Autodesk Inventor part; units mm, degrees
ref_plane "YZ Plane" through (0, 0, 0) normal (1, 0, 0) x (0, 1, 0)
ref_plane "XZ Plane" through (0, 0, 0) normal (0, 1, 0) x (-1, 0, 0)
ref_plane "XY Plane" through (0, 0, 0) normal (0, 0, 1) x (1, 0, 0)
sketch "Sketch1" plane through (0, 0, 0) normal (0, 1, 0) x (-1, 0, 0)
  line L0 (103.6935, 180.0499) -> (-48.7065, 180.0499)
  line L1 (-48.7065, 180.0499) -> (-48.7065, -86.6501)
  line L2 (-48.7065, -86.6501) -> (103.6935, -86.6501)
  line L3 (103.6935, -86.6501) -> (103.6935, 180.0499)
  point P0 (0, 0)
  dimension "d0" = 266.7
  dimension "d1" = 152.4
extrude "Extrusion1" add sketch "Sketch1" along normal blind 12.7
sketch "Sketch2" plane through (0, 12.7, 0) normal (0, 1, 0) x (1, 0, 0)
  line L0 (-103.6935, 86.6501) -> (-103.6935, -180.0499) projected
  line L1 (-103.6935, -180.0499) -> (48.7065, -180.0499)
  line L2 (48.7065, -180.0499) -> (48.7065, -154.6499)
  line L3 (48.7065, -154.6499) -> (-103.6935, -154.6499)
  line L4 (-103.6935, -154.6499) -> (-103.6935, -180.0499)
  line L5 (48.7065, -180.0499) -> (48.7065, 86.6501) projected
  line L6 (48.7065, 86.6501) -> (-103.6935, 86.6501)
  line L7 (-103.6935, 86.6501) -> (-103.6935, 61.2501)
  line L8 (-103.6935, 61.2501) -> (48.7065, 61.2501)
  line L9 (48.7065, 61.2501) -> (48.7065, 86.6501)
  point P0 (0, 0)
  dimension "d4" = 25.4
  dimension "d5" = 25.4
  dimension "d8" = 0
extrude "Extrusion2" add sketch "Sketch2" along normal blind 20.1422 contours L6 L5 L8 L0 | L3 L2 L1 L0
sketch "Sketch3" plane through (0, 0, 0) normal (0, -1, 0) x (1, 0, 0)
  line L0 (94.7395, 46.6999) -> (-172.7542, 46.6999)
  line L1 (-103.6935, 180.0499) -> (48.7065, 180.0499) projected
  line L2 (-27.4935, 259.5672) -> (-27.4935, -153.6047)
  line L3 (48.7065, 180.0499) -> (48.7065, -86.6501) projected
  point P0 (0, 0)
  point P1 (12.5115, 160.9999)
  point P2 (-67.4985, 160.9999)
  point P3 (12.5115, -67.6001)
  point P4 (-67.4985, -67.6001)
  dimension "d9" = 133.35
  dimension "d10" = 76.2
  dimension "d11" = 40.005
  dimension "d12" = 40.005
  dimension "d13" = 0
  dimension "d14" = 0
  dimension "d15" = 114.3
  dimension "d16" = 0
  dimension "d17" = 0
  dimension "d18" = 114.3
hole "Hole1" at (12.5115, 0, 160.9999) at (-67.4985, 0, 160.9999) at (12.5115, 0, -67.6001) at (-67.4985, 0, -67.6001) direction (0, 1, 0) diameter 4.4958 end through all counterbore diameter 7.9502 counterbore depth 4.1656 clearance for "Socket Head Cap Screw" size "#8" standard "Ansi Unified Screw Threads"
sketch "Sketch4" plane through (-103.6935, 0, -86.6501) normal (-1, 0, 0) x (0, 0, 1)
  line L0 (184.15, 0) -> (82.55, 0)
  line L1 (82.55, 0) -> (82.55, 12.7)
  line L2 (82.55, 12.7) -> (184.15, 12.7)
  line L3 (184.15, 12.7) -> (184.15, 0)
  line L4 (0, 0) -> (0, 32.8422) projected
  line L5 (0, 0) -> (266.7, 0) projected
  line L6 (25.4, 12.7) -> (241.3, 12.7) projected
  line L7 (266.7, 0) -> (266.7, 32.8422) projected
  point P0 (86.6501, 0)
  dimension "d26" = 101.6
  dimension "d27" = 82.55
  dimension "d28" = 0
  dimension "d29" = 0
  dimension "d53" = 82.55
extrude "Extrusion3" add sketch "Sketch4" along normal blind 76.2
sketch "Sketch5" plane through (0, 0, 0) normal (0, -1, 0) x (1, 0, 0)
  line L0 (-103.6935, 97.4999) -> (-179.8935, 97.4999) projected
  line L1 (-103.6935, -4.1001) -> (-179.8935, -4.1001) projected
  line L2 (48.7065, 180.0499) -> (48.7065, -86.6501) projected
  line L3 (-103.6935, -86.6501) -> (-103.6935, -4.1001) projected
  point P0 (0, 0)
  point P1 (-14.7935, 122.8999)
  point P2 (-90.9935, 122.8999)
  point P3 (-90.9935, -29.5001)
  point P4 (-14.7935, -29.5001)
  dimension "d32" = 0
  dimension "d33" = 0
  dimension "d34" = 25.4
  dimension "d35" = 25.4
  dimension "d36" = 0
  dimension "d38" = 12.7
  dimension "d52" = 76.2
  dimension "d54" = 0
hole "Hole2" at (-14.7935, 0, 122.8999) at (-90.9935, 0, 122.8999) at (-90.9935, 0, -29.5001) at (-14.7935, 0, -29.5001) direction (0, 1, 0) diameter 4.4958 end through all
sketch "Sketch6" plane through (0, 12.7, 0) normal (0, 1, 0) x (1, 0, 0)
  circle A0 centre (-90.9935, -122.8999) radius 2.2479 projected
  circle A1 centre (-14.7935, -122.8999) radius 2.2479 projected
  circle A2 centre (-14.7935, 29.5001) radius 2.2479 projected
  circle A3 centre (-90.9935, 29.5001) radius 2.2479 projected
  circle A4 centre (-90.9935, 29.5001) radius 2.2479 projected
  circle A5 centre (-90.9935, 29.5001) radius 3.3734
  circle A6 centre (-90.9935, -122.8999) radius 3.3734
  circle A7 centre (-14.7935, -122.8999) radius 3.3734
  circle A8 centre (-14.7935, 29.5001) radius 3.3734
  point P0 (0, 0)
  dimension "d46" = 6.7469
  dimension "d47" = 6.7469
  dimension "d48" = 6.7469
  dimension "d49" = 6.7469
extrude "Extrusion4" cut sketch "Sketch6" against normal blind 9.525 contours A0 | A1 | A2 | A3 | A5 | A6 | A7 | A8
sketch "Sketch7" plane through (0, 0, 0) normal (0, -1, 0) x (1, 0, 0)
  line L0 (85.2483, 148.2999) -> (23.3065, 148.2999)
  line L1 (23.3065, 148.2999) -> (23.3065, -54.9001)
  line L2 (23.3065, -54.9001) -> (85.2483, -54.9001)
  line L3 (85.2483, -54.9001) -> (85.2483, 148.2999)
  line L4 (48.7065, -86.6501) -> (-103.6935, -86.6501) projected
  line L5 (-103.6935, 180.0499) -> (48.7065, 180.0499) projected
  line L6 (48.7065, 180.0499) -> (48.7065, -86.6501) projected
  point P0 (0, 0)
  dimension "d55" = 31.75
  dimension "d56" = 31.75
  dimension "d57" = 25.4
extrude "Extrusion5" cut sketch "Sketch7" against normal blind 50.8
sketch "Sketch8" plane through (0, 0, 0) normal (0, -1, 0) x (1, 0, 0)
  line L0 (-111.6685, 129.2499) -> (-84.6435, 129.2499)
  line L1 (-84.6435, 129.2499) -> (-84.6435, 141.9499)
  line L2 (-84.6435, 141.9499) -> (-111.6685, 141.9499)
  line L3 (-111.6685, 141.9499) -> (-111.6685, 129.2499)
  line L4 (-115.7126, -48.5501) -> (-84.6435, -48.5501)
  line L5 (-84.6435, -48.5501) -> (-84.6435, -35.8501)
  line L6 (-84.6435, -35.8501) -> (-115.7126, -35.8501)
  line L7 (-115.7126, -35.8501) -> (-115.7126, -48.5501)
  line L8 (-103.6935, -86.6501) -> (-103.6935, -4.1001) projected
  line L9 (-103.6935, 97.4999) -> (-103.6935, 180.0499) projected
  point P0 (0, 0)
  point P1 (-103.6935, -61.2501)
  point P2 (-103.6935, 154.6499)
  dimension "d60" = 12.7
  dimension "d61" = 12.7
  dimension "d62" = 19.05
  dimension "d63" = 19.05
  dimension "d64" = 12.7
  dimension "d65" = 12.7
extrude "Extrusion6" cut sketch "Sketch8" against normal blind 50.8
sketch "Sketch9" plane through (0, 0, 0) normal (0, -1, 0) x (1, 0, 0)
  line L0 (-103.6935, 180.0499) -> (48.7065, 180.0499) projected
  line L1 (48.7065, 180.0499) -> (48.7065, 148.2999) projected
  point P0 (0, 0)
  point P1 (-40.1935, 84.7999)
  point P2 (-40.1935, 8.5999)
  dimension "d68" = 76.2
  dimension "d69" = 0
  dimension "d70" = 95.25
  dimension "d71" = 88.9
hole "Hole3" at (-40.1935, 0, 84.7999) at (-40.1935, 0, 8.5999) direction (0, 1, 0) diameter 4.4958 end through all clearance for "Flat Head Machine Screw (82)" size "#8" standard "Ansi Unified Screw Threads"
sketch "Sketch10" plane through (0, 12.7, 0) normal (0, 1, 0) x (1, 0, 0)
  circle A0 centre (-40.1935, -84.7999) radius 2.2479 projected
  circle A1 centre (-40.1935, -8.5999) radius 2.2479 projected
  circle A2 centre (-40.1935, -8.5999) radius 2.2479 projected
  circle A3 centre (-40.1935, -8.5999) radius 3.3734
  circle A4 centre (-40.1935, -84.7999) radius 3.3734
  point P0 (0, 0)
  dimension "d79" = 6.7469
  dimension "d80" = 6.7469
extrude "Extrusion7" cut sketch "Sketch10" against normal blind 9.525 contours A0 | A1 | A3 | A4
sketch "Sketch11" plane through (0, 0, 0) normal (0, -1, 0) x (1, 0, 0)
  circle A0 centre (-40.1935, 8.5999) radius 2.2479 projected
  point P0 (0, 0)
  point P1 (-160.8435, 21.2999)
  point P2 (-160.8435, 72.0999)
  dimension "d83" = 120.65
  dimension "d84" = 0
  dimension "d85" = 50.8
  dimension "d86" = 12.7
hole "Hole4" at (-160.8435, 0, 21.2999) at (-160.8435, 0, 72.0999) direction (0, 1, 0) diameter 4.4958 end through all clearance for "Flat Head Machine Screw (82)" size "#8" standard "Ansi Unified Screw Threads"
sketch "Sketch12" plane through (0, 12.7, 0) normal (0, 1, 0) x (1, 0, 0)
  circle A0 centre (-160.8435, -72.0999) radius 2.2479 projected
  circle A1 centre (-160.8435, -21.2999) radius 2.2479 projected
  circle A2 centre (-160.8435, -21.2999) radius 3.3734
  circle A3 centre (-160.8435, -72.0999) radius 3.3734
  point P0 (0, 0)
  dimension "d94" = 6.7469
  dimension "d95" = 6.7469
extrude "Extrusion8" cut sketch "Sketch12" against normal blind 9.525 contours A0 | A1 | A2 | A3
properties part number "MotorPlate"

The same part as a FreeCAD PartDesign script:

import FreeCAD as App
import Part
import Sketcher

V = App.Vector
Q = App.Units.Quantity


def add_polygon(sketch, points):
    """Adds a closed chain of lines whose ends are joined by coincident constraints."""
    first, n = sketch.GeometryCount, len(points)
    for a, b in zip(points, points[1:] + points[:1]):
        sketch.addGeometry(Part.LineSegment(App.Vector(*a, 0), App.Vector(*b, 0)), False)
    for i in range(n):
        sketch.addConstraint(Sketcher.Constraint("Coincident", first + i, 2, first + (i + 1) % n, 1))

doc = App.newDocument("Part")
params = doc.addObject("Spreadsheet::Sheet", "Params")
for row, (alias, value) in enumerate([
    ("sketch1_width", "6 in"),
    ("sketch1_height", "10.5 in"),
    ("pad1_length", "0.5 in"),
    ("sketch2_height", "1 in"),
    ("sketch2_width", "6 in"),
    ("pad2_length", "0.793 in"),
    ("sketch3_diameter", "0.177 in"),
    ("hole_diameter", "0.177 in"),
    ("hole_cbore_diameter", "0.313 in"),
    ("hole_cbore_depth", "0.164 in"),
    ("sketch4_height", "4 in"),
    ("sketch4_width", "0.5 in"),
    ("pad3_length", "3 in"),
    ("sketch5_diameter", "0.177 in"),
    ("hole2_diameter", "0.177 in"),
    ("sketch6_diameter", "0.265622 in"),
    ("pocket1_length", "0.375 in"),
    ("sketch7_height", "8 in"),
    ("pocket2_length", "2 in"),
    ("sketch8_height", "0.5 in"),
    ("pocket3_length", "2 in"),
    ("sketch9_diameter", "0.177 in"),
    ("hole3_diameter", "0.177 in"),
    ("sketch10_diameter", "0.265622 in"),
    ("pocket4_length", "0.375 in"),
    ("sketch11_diameter", "0.177 in"),
    ("hole4_diameter", "0.177 in"),
    ("sketch12_diameter", "0.265622 in"),
    ("pocket5_length", "0.375 in"),
], start=1):
    params.set(f"A{row}", alias)
    params.set(f"B{row}", "=" + value)
    params.setAlias(f"B{row}", alias)

body = doc.addObject("PartDesign::Body", "Body")

# Sketch on XZ plane
sketch1 = body.newObject("Sketcher::SketchObject", "Sketch")
sketch1.AttachmentSupport = (doc.getObject("XZ_Plane"), [""])
sketch1.MapMode = "FlatFace"
add_polygon(sketch1, [(-104, -87), (-104, 180), (49, 180), (49, -87)])  # lines 0-3
sketch1.addConstraint([
    Sketcher.Constraint("Vertical", 0),
    Sketcher.Constraint("Horizontal", 1),
    Sketcher.Constraint("Vertical", 2),
    Sketcher.Constraint("Horizontal", 3),
    Sketcher.Constraint("DistanceX", 1, 1, 1, 2, Q("6 in")),
    Sketcher.Constraint("DistanceY", 0, 1, 0, 2, Q("10.5 in")),
    Sketcher.Constraint("DistanceX", 0, 2, -1, 1, Q("103.6935 mm")),
    Sketcher.Constraint("DistanceY", -1, 1, 0, 2, Q("180.05 mm")),
])
sketch1.setExpression("Constraints[8]", "Params.sketch1_width")
sketch1.setExpression("Constraints[9]", "Params.sketch1_height")
pad1 = body.newObject("PartDesign::Pad", "Pad")
pad1.Profile = sketch1
pad1.setExpression("Length", "Params.pad1_length")
pad1.Reversed = True

# Sketch on XZ plane
sketch2 = body.newObject("Sketcher::SketchObject", "Sketch001")
sketch2.AttachmentSupport = (doc.getObject("XZ_Plane"), [""])
sketch2.MapMode = "FlatFace"
sketch2.AttachmentOffset = App.Placement(V(0, 0, -0.5 * 25.4), App.Rotation())
add_polygon(sketch2, [(49, -87), (-104, -87), (-104, -61), (49, -61)])  # lines 0-3
add_polygon(sketch2, [(49, 155), (-104, 155), (-104, 180), (49, 180)])  # lines 4-7
sketch2.addConstraint([
    Sketcher.Constraint("Horizontal", 0),
    Sketcher.Constraint("Vertical", 1),
    Sketcher.Constraint("Horizontal", 2),
    Sketcher.Constraint("Vertical", 3),
    Sketcher.Constraint("Horizontal", 4),
    Sketcher.Constraint("Vertical", 5),
    Sketcher.Constraint("Horizontal", 6),
    Sketcher.Constraint("Vertical", 7),
    Sketcher.Constraint("Vertical", 1, 2, 4, 2),
    Sketcher.Constraint("Vertical", 3, 2, 6, 2),
    Sketcher.Constraint("Equal", 3, 5),
    Sketcher.Constraint("DistanceY", 1, 1, 1, 2, Q("1 in")),
    Sketcher.Constraint("DistanceX", 0, 2, 0, 1, Q("6 in")),
    Sketcher.Constraint("DistanceY", 1, 2, 4, 2, Q("8.5 in")),
    Sketcher.Constraint("DistanceX", 0, 2, -1, 1, Q("103.6935 mm")),
    Sketcher.Constraint("DistanceY", 0, 2, -1, 1, Q("86.65 mm")),
])
sketch2.setExpression("Constraints[19]", "Params.sketch2_height")
sketch2.setExpression("Constraints[20]", "Params.sketch2_width")
pad2 = body.newObject("PartDesign::Pad", "Pad001")
pad2.Profile = sketch2
pad2.setExpression("Length", "Params.pad2_length")
pad2.Reversed = True

# Sketch on XZ plane
sketch3 = body.newObject("Sketcher::SketchObject", "Sketch002")
sketch3.AttachmentSupport = (doc.getObject("XZ_Plane"), [""])
sketch3.MapMode = "FlatFace"
sketch3.addGeometry([
    Part.Circle(V(12.5, 161, 0), V(0, 0, 1), 2.2),
    Part.Circle(V(-67.5, 161, 0), V(0, 0, 1), 2.2),
    Part.Circle(V(12.5, -67.6, 0), V(0, 0, 1), 2.2),
    Part.Circle(V(-67.5, -67.6, 0), V(0, 0, 1), 2.2),
], False)
sketch3.addConstraint([
    Sketcher.Constraint("Equal", 0, 1),
    Sketcher.Constraint("Equal", 1, 2),
    Sketcher.Constraint("Equal", 2, 3),
    Sketcher.Constraint("Horizontal", 0, 3, 1, 3),
    Sketcher.Constraint("Horizontal", 2, 3, 3, 3),
    Sketcher.Constraint("Vertical", 0, 3, 2, 3),
    Sketcher.Constraint("Vertical", 1, 3, 3, 3),
    Sketcher.Constraint("Diameter", 0, Q("0.177 in")),
    Sketcher.Constraint("DistanceY", 2, 3, 0, 3, Q("9 in")),
    Sketcher.Constraint("DistanceX", 1, 3, 0, 3, Q("3.15 in")),
    Sketcher.Constraint("DistanceX", -1, 1, 0, 3, Q("12.5115 mm")),
    Sketcher.Constraint("DistanceY", -1, 1, 0, 3, Q("161 mm")),
])
sketch3.setExpression("Constraints[7]", "Params.sketch3_diameter")
doc.recompute()
hole = body.newObject("PartDesign::Hole", "Hole")
hole.Profile = sketch3
hole.ThreadType = "None"
hole.setExpression("Diameter", "Params.hole_diameter")
hole.DepthType = "ThroughAll"
hole.HoleCutType = "Counterbore"
hole.setExpression("HoleCutDiameter", "Params.hole_cbore_diameter")
hole.setExpression("HoleCutDepth", "Params.hole_cbore_depth")

# Sketch on YZ plane
sketch4 = body.newObject("Sketcher::SketchObject", "Sketch003")
sketch4.AttachmentSupport = (doc.getObject("YZ_Plane"), [""])
sketch4.MapMode = "FlatFace"
sketch4.AttachmentOffset = App.Placement(V(0, 0, -103.6935), App.Rotation())
add_polygon(sketch4, [(0, -4), (0, 97), (13, 97), (13, -4)])  # lines 0-3
sketch4.addConstraint([
    Sketcher.Constraint("Vertical", 0),
    Sketcher.Constraint("Horizontal", 1),
    Sketcher.Constraint("Vertical", 2),
    Sketcher.Constraint("Horizontal", 3),
    Sketcher.Constraint("PointOnObject", 0, 2, -2),
    Sketcher.Constraint("DistanceY", 0, 1, 0, 2, Q("4 in")),
    Sketcher.Constraint("DistanceX", 1, 1, 1, 2, Q("0.5 in")),
    Sketcher.Constraint("DistanceY", -1, 1, 0, 2, Q("97.5 mm")),
])
sketch4.setExpression("Constraints[9]", "Params.sketch4_height")
sketch4.setExpression("Constraints[10]", "Params.sketch4_width")
pad3 = body.newObject("PartDesign::Pad", "Pad002")
pad3.Profile = sketch4
pad3.setExpression("Length", "Params.pad3_length")
pad3.Reversed = True

# Sketch on XZ plane
sketch5 = body.newObject("Sketcher::SketchObject", "Sketch004")
sketch5.AttachmentSupport = (doc.getObject("XZ_Plane"), [""])
sketch5.MapMode = "FlatFace"
sketch5.addGeometry([
    Part.Circle(V(-14.8, 122.9, 0), V(0, 0, 1), 2.2),
    Part.Circle(V(-91, 122.9, 0), V(0, 0, 1), 2.2),
    Part.Circle(V(-91, -29.5, 0), V(0, 0, 1), 2.2),
    Part.Circle(V(-14.8, -29.5, 0), V(0, 0, 1), 2.2),
], False)
sketch5.addConstraint([
    Sketcher.Constraint("Equal", 0, 1),
    Sketcher.Constraint("Equal", 1, 2),
    Sketcher.Constraint("Equal", 2, 3),
    Sketcher.Constraint("Horizontal", 0, 3, 1, 3),
    Sketcher.Constraint("Horizontal", 2, 3, 3, 3),
    Sketcher.Constraint("Vertical", 1, 3, 2, 3),
    Sketcher.Constraint("Vertical", 0, 3, 3, 3),
    Sketcher.Constraint("Diameter", 0, Q("0.177 in")),
    Sketcher.Constraint("DistanceX", 1, 3, 0, 3, Q("3 in")),
    Sketcher.Constraint("DistanceY", 2, 3, 1, 3, Q("6 in")),
    Sketcher.Constraint("DistanceX", 0, 3, -1, 1, Q("14.7935 mm")),
    Sketcher.Constraint("DistanceY", -1, 1, 0, 3, Q("122.9 mm")),
])
sketch5.setExpression("Constraints[7]", "Params.sketch5_diameter")
doc.recompute()
hole2 = body.newObject("PartDesign::Hole", "Hole001")
hole2.Profile = sketch5
hole2.ThreadType = "None"
hole2.setExpression("Diameter", "Params.hole2_diameter")
hole2.DepthType = "ThroughAll"

# Sketch on XZ plane
sketch6 = body.newObject("Sketcher::SketchObject", "Sketch005")
sketch6.AttachmentSupport = (doc.getObject("XZ_Plane"), [""])
sketch6.MapMode = "FlatFace"
sketch6.AttachmentOffset = App.Placement(V(0, 0, -0.5 * 25.4), App.Rotation())
sketch6.addGeometry([
    Part.Circle(V(-91, 122.9, 0), V(0, 0, 1), 3.4),
    Part.Circle(V(-14.8, 122.9, 0), V(0, 0, 1), 3.4),
    Part.Circle(V(-14.8, -29.5, 0), V(0, 0, 1), 3.4),
    Part.Circle(V(-91, -29.5, 0), V(0, 0, 1), 3.4),
], False)
sketch6.addConstraint([
    Sketcher.Constraint("Equal", 0, 1),
    Sketcher.Constraint("Equal", 1, 2),
    Sketcher.Constraint("Equal", 2, 3),
    Sketcher.Constraint("Horizontal", 0, 3, 1, 3),
    Sketcher.Constraint("Horizontal", 2, 3, 3, 3),
    Sketcher.Constraint("Vertical", 1, 3, 2, 3),
    Sketcher.Constraint("Vertical", 0, 3, 3, 3),
    Sketcher.Constraint("Diameter", 0, Q("0.265622 in")),
    Sketcher.Constraint("DistanceX", 0, 3, 1, 3, Q("3 in")),
    Sketcher.Constraint("DistanceY", 2, 3, 1, 3, Q("6 in")),
    Sketcher.Constraint("DistanceX", 0, 3, -1, 1, Q("90.9935 mm")),
    Sketcher.Constraint("DistanceY", -1, 1, 0, 3, Q("122.9 mm")),
])
sketch6.setExpression("Constraints[7]", "Params.sketch6_diameter")
pocket1 = body.newObject("PartDesign::Pocket", "Pocket")
pocket1.Profile = sketch6
pocket1.setExpression("Length", "Params.pocket1_length")
pocket1.Reversed = True

# Sketch on XZ plane
sketch7 = body.newObject("Sketcher::SketchObject", "Sketch006")
sketch7.AttachmentSupport = (doc.getObject("XZ_Plane"), [""])
sketch7.MapMode = "FlatFace"
add_polygon(sketch7, [(85, -55), (85, 148), (23, 148), (23, -55)])  # lines 0-3
sketch7.addConstraint([
    Sketcher.Constraint("Vertical", 0),
    Sketcher.Constraint("Horizontal", 1),
    Sketcher.Constraint("Vertical", 2),
    Sketcher.Constraint("Horizontal", 3),
    Sketcher.Constraint("DistanceY", 0, 1, 0, 2, Q("8 in")),
    Sketcher.Constraint("DistanceX", 1, 2, 1, 1, Q("61.9418 mm")),
    Sketcher.Constraint("DistanceX", -1, 1, 0, 2, Q("85.2483 mm")),
    Sketcher.Constraint("DistanceY", -1, 1, 0, 2, Q("148.3 mm")),
])
sketch7.setExpression("Constraints[8]", "Params.sketch7_height")
pocket2 = body.newObject("PartDesign::Pocket", "Pocket001")
pocket2.Profile = sketch7
pocket2.setExpression("Length", "Params.pocket2_length")

# Sketch on XZ plane
sketch8 = body.newObject("Sketcher::SketchObject", "Sketch007")
sketch8.AttachmentSupport = (doc.getObject("XZ_Plane"), [""])
sketch8.MapMode = "FlatFace"
add_polygon(sketch8, [(-112, 142), (-112, 129), (-85, 129), (-85, 142)])  # lines 0-3
add_polygon(sketch8, [(-116, -36), (-116, -49), (-85, -49), (-85, -36)])  # lines 4-7
sketch8.addConstraint([
    Sketcher.Constraint("Vertical", 0),
    Sketcher.Constraint("Horizontal", 1),
    Sketcher.Constraint("Vertical", 2),
    Sketcher.Constraint("Horizontal", 3),
    Sketcher.Constraint("Vertical", 4),
    Sketcher.Constraint("Horizontal", 5),
    Sketcher.Constraint("Vertical", 6),
    Sketcher.Constraint("Horizontal", 7),
    Sketcher.Constraint("Vertical", 2, 2, 5, 2),
    Sketcher.Constraint("Equal", 2, 4),
    Sketcher.Constraint("DistanceY", 0, 2, 0, 1, Q("0.5 in")),
    Sketcher.Constraint("DistanceY", 4, 2, 0, 2, Q("7 in")),
    Sketcher.Constraint("DistanceX", 5, 1, 5, 2, Q("1.2232 in")),
    Sketcher.Constraint("DistanceX", 1, 1, 1, 2, Q("27.025 mm")),
    Sketcher.Constraint("DistanceX", 0, 2, -1, 1, Q("4.3964 in")),
    Sketcher.Constraint("DistanceY", -1, 1, 0, 2, Q("129.25 mm")),
])
sketch8.setExpression("Constraints[18]", "Params.sketch8_height")
pocket3 = body.newObject("PartDesign::Pocket", "Pocket002")
pocket3.Profile = sketch8
pocket3.setExpression("Length", "Params.pocket3_length")

# Sketch on XZ plane
sketch9 = body.newObject("Sketcher::SketchObject", "Sketch008")
sketch9.AttachmentSupport = (doc.getObject("XZ_Plane"), [""])
sketch9.MapMode = "FlatFace"
sketch9.addGeometry([
    Part.Circle(V(-40.2, 84.8, 0), V(0, 0, 1), 2.2),
    Part.Circle(V(-40.2, 8.6, 0), V(0, 0, 1), 2.2),
], False)
sketch9.addConstraint([
    Sketcher.Constraint("Equal", 0, 1),
    Sketcher.Constraint("Vertical", 0, 3, 1, 3),
    Sketcher.Constraint("Diameter", 0, Q("0.177 in")),
    Sketcher.Constraint("DistanceY", 1, 3, 0, 3, Q("3 in")),
    Sketcher.Constraint("DistanceX", 0, 3, -1, 1, Q("40.1935 mm")),
    Sketcher.Constraint("DistanceY", -1, 1, 0, 3, Q("84.8 mm")),
])
sketch9.setExpression("Constraints[2]", "Params.sketch9_diameter")
doc.recompute()
hole3 = body.newObject("PartDesign::Hole", "Hole002")
hole3.Profile = sketch9
hole3.ThreadType = "None"
hole3.setExpression("Diameter", "Params.hole3_diameter")
hole3.DepthType = "ThroughAll"

# Sketch on XZ plane
sketch10 = body.newObject("Sketcher::SketchObject", "Sketch009")
sketch10.AttachmentSupport = (doc.getObject("XZ_Plane"), [""])
sketch10.MapMode = "FlatFace"
sketch10.AttachmentOffset = App.Placement(V(0, 0, -0.5 * 25.4), App.Rotation())
sketch10.addGeometry([
    Part.Circle(V(-40.2, 84.8, 0), V(0, 0, 1), 3.4),
    Part.Circle(V(-40.2, 8.6, 0), V(0, 0, 1), 3.4),
], False)
sketch10.addConstraint([
    Sketcher.Constraint("Equal", 0, 1),
    Sketcher.Constraint("Vertical", 0, 3, 1, 3),
    Sketcher.Constraint("Diameter", 0, Q("0.265622 in")),
    Sketcher.Constraint("DistanceY", 1, 3, 0, 3, Q("3 in")),
    Sketcher.Constraint("DistanceX", 0, 3, -1, 1, Q("40.1935 mm")),
    Sketcher.Constraint("DistanceY", -1, 1, 0, 3, Q("84.8 mm")),
])
sketch10.setExpression("Constraints[2]", "Params.sketch10_diameter")
pocket4 = body.newObject("PartDesign::Pocket", "Pocket003")
pocket4.Profile = sketch10
pocket4.setExpression("Length", "Params.pocket4_length")
pocket4.Reversed = True

# Sketch on XZ plane
sketch11 = body.newObject("Sketcher::SketchObject", "Sketch010")
sketch11.AttachmentSupport = (doc.getObject("XZ_Plane"), [""])
sketch11.MapMode = "FlatFace"
sketch11.addGeometry([
    Part.Circle(V(-160.8, 21.3, 0), V(0, 0, 1), 2.2),
    Part.Circle(V(-160.8, 72.1, 0), V(0, 0, 1), 2.2),
], False)
sketch11.addConstraint([
    Sketcher.Constraint("Equal", 0, 1),
    Sketcher.Constraint("Vertical", 0, 3, 1, 3),
    Sketcher.Constraint("Diameter", 0, Q("0.177 in")),
    Sketcher.Constraint("DistanceY", 0, 3, 1, 3, Q("2 in")),
    Sketcher.Constraint("DistanceX", 0, 3, -1, 1, Q("160.8435 mm")),
    Sketcher.Constraint("DistanceY", -1, 1, 0, 3, Q("21.3 mm")),
])
sketch11.setExpression("Constraints[2]", "Params.sketch11_diameter")
doc.recompute()
hole4 = body.newObject("PartDesign::Hole", "Hole003")
hole4.Profile = sketch11
hole4.ThreadType = "None"
hole4.setExpression("Diameter", "Params.hole4_diameter")
hole4.DepthType = "ThroughAll"

# Sketch on XZ plane
sketch12 = body.newObject("Sketcher::SketchObject", "Sketch011")
sketch12.AttachmentSupport = (doc.getObject("XZ_Plane"), [""])
sketch12.MapMode = "FlatFace"
sketch12.AttachmentOffset = App.Placement(V(0, 0, -0.5 * 25.4), App.Rotation())
sketch12.addGeometry([
    Part.Circle(V(-160.8, 72.1, 0), V(0, 0, 1), 3.4),
    Part.Circle(V(-160.8, 21.3, 0), V(0, 0, 1), 3.4),
], False)
sketch12.addConstraint([
    Sketcher.Constraint("Equal", 0, 1),
    Sketcher.Constraint("Vertical", 0, 3, 1, 3),
    Sketcher.Constraint("Diameter", 0, Q("0.265622 in")),
    Sketcher.Constraint("DistanceY", 1, 3, 0, 3, Q("2 in")),
    Sketcher.Constraint("DistanceX", 0, 3, -1, 1, Q("160.8435 mm")),
    Sketcher.Constraint("DistanceY", -1, 1, 0, 3, Q("72.1 mm")),
])
sketch12.setExpression("Constraints[2]", "Params.sketch12_diameter")
pocket5 = body.newObject("PartDesign::Pocket", "Pocket004")
pocket5.Profile = sketch12
pocket5.setExpression("Length", "Params.pocket5_length")
pocket5.Reversed = True

doc.recompute()
